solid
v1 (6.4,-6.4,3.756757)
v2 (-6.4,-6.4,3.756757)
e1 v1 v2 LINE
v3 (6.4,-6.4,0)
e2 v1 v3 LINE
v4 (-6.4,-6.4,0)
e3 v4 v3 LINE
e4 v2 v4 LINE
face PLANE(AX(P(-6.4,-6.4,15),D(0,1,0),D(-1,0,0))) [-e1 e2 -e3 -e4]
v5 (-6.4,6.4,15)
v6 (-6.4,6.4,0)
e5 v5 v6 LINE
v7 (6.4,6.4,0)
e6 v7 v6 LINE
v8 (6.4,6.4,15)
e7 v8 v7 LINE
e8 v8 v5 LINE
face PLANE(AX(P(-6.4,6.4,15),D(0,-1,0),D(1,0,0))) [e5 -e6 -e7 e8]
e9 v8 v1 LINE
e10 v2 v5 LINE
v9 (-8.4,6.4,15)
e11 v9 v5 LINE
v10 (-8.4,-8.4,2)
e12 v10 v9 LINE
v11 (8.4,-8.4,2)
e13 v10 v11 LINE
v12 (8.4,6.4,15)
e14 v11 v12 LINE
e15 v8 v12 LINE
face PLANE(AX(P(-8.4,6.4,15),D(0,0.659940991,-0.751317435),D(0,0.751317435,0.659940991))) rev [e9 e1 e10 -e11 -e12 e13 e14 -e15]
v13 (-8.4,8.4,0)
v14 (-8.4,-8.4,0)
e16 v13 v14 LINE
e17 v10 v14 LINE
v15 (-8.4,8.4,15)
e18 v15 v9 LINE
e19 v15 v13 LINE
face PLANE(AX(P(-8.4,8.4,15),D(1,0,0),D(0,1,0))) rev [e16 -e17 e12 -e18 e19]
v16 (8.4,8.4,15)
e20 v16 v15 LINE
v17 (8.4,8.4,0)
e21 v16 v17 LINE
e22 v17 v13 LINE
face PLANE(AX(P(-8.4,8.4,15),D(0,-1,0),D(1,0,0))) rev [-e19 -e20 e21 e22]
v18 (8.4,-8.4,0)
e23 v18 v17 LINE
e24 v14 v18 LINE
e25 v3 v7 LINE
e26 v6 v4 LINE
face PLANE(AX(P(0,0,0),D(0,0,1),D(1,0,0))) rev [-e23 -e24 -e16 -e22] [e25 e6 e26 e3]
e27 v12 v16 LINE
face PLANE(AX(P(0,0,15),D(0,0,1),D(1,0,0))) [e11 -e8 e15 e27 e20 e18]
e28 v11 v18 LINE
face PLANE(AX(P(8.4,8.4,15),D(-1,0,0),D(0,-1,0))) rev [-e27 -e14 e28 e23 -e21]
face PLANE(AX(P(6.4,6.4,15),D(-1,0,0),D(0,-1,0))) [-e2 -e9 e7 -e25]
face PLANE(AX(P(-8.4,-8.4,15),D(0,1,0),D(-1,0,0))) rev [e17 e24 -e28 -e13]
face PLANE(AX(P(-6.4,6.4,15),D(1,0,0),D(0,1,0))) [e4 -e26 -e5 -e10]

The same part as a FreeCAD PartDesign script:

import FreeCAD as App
import Part
import Sketcher
from FreeCAD import Vector

doc = App.newDocument("Part")
body = doc.addObject("PartDesign::Body", "Body")

sketch1 = body.newObject("Sketcher::SketchObject", "Sketch")
sketch1.AttachmentSupport = (doc.getObject("XY_Plane"), [""])
sketch1.MapMode = "FlatFace"
sketch1.addGeometry([
    Part.LineSegment(Vector(-8, 8, 0), Vector(-8, -8, 0)),
    Part.LineSegment(Vector(-8, -8, 0), Vector(8, -8, 0)),
    Part.LineSegment(Vector(8, -8, 0), Vector(8, 8, 0)),
    Part.LineSegment(Vector(8, 8, 0), Vector(-8, 8, 0)),
    Part.LineSegment(Vector(6, -6, 0), Vector(-6, -6, 0)),
    Part.LineSegment(Vector(-6, -6, 0), Vector(-6, 6, 0)),
    Part.LineSegment(Vector(-6, 6, 0), Vector(6, 6, 0)),
    Part.LineSegment(Vector(6, 6, 0), Vector(6, -6, 0)),
], False)
sketch1.addConstraint([
    Sketcher.Constraint("Coincident", 0, 2, 1, 1),
    Sketcher.Constraint("Coincident", 1, 2, 2, 1),
    Sketcher.Constraint("Coincident", 2, 2, 3, 1),
    Sketcher.Constraint("Coincident", 3, 2, 0, 1),
    Sketcher.Constraint("Coincident", 4, 2, 5, 1),
    Sketcher.Constraint("Coincident", 5, 2, 6, 1),
    Sketcher.Constraint("Coincident", 6, 2, 7, 1),
    Sketcher.Constraint("Coincident", 7, 2, 4, 1),
    Sketcher.Constraint("Vertical", 0),
    Sketcher.Constraint("Horizontal", 1),
    Sketcher.Constraint("Vertical", 2),
    Sketcher.Constraint("Horizontal", 3),
    Sketcher.Constraint("Horizontal", 4),
    Sketcher.Constraint("Vertical", 5),
    Sketcher.Constraint("Horizontal", 6),
    Sketcher.Constraint("Vertical", 7),
    Sketcher.Constraint("Symmetric", 0, 2, 2, 2, -1, 1),
    Sketcher.Constraint("Symmetric", 4, 2, 6, 2, -1, 1),
    Sketcher.Constraint("Equal", 3, 0),
    Sketcher.Constraint("Equal", 6, 5),
    Sketcher.Constraint("DistanceX", 1, 1, 1, 2, 16.8),
    Sketcher.Constraint("DistanceX", 4, 2, 4, 1, 12.8),
])
pad1 = body.newObject("PartDesign::Pad", "Pad")
pad1.Profile = sketch1
pad1.Length = 15

sketch2 = body.newObject("Sketcher::SketchObject", "Sketch001")
sketch2.AttachmentSupport = (doc.getObject("YZ_Plane"), [""])
sketch2.MapMode = "FlatFace"
sketch2.AttachmentOffset = App.Placement(Vector(0, 0, 8.4), App.Rotation())
sketch2.addGeometry([
    Part.LineSegment(Vector(-8, 2, 0), Vector(6, 15, 0)),
    Part.LineSegment(Vector(6, 15, 0), Vector(-8, 15, 0)),
    Part.LineSegment(Vector(-8, 15, 0), Vector(-8, 2, 0)),
], False)
sketch2.addConstraint([
    Sketcher.Constraint("Coincident", 0, 2, 1, 1),
    Sketcher.Constraint("Coincident", 1, 2, 2, 1),
    Sketcher.Constraint("Coincident", 2, 2, 0, 1),
    Sketcher.Constraint("Horizontal", 1),
    Sketcher.Constraint("Vertical", 2),
    Sketcher.Constraint("DistanceY", 2, 2, 2, 1, 13.0),
    Sketcher.Constraint("DistanceX", 1, 2, 1, 1, 14.8),
    Sketcher.Constraint("DistanceY", -1, 1, 0, 2, 15.0),
    Sketcher.Constraint("DistanceX", -1, 1, 0, 2, 6.4),
])
pocket1 = body.newObject("PartDesign::Pocket", "Pocket")
pocket1.Profile = sketch2
pocket1.Type = "ThroughAll"

doc.recompute()
